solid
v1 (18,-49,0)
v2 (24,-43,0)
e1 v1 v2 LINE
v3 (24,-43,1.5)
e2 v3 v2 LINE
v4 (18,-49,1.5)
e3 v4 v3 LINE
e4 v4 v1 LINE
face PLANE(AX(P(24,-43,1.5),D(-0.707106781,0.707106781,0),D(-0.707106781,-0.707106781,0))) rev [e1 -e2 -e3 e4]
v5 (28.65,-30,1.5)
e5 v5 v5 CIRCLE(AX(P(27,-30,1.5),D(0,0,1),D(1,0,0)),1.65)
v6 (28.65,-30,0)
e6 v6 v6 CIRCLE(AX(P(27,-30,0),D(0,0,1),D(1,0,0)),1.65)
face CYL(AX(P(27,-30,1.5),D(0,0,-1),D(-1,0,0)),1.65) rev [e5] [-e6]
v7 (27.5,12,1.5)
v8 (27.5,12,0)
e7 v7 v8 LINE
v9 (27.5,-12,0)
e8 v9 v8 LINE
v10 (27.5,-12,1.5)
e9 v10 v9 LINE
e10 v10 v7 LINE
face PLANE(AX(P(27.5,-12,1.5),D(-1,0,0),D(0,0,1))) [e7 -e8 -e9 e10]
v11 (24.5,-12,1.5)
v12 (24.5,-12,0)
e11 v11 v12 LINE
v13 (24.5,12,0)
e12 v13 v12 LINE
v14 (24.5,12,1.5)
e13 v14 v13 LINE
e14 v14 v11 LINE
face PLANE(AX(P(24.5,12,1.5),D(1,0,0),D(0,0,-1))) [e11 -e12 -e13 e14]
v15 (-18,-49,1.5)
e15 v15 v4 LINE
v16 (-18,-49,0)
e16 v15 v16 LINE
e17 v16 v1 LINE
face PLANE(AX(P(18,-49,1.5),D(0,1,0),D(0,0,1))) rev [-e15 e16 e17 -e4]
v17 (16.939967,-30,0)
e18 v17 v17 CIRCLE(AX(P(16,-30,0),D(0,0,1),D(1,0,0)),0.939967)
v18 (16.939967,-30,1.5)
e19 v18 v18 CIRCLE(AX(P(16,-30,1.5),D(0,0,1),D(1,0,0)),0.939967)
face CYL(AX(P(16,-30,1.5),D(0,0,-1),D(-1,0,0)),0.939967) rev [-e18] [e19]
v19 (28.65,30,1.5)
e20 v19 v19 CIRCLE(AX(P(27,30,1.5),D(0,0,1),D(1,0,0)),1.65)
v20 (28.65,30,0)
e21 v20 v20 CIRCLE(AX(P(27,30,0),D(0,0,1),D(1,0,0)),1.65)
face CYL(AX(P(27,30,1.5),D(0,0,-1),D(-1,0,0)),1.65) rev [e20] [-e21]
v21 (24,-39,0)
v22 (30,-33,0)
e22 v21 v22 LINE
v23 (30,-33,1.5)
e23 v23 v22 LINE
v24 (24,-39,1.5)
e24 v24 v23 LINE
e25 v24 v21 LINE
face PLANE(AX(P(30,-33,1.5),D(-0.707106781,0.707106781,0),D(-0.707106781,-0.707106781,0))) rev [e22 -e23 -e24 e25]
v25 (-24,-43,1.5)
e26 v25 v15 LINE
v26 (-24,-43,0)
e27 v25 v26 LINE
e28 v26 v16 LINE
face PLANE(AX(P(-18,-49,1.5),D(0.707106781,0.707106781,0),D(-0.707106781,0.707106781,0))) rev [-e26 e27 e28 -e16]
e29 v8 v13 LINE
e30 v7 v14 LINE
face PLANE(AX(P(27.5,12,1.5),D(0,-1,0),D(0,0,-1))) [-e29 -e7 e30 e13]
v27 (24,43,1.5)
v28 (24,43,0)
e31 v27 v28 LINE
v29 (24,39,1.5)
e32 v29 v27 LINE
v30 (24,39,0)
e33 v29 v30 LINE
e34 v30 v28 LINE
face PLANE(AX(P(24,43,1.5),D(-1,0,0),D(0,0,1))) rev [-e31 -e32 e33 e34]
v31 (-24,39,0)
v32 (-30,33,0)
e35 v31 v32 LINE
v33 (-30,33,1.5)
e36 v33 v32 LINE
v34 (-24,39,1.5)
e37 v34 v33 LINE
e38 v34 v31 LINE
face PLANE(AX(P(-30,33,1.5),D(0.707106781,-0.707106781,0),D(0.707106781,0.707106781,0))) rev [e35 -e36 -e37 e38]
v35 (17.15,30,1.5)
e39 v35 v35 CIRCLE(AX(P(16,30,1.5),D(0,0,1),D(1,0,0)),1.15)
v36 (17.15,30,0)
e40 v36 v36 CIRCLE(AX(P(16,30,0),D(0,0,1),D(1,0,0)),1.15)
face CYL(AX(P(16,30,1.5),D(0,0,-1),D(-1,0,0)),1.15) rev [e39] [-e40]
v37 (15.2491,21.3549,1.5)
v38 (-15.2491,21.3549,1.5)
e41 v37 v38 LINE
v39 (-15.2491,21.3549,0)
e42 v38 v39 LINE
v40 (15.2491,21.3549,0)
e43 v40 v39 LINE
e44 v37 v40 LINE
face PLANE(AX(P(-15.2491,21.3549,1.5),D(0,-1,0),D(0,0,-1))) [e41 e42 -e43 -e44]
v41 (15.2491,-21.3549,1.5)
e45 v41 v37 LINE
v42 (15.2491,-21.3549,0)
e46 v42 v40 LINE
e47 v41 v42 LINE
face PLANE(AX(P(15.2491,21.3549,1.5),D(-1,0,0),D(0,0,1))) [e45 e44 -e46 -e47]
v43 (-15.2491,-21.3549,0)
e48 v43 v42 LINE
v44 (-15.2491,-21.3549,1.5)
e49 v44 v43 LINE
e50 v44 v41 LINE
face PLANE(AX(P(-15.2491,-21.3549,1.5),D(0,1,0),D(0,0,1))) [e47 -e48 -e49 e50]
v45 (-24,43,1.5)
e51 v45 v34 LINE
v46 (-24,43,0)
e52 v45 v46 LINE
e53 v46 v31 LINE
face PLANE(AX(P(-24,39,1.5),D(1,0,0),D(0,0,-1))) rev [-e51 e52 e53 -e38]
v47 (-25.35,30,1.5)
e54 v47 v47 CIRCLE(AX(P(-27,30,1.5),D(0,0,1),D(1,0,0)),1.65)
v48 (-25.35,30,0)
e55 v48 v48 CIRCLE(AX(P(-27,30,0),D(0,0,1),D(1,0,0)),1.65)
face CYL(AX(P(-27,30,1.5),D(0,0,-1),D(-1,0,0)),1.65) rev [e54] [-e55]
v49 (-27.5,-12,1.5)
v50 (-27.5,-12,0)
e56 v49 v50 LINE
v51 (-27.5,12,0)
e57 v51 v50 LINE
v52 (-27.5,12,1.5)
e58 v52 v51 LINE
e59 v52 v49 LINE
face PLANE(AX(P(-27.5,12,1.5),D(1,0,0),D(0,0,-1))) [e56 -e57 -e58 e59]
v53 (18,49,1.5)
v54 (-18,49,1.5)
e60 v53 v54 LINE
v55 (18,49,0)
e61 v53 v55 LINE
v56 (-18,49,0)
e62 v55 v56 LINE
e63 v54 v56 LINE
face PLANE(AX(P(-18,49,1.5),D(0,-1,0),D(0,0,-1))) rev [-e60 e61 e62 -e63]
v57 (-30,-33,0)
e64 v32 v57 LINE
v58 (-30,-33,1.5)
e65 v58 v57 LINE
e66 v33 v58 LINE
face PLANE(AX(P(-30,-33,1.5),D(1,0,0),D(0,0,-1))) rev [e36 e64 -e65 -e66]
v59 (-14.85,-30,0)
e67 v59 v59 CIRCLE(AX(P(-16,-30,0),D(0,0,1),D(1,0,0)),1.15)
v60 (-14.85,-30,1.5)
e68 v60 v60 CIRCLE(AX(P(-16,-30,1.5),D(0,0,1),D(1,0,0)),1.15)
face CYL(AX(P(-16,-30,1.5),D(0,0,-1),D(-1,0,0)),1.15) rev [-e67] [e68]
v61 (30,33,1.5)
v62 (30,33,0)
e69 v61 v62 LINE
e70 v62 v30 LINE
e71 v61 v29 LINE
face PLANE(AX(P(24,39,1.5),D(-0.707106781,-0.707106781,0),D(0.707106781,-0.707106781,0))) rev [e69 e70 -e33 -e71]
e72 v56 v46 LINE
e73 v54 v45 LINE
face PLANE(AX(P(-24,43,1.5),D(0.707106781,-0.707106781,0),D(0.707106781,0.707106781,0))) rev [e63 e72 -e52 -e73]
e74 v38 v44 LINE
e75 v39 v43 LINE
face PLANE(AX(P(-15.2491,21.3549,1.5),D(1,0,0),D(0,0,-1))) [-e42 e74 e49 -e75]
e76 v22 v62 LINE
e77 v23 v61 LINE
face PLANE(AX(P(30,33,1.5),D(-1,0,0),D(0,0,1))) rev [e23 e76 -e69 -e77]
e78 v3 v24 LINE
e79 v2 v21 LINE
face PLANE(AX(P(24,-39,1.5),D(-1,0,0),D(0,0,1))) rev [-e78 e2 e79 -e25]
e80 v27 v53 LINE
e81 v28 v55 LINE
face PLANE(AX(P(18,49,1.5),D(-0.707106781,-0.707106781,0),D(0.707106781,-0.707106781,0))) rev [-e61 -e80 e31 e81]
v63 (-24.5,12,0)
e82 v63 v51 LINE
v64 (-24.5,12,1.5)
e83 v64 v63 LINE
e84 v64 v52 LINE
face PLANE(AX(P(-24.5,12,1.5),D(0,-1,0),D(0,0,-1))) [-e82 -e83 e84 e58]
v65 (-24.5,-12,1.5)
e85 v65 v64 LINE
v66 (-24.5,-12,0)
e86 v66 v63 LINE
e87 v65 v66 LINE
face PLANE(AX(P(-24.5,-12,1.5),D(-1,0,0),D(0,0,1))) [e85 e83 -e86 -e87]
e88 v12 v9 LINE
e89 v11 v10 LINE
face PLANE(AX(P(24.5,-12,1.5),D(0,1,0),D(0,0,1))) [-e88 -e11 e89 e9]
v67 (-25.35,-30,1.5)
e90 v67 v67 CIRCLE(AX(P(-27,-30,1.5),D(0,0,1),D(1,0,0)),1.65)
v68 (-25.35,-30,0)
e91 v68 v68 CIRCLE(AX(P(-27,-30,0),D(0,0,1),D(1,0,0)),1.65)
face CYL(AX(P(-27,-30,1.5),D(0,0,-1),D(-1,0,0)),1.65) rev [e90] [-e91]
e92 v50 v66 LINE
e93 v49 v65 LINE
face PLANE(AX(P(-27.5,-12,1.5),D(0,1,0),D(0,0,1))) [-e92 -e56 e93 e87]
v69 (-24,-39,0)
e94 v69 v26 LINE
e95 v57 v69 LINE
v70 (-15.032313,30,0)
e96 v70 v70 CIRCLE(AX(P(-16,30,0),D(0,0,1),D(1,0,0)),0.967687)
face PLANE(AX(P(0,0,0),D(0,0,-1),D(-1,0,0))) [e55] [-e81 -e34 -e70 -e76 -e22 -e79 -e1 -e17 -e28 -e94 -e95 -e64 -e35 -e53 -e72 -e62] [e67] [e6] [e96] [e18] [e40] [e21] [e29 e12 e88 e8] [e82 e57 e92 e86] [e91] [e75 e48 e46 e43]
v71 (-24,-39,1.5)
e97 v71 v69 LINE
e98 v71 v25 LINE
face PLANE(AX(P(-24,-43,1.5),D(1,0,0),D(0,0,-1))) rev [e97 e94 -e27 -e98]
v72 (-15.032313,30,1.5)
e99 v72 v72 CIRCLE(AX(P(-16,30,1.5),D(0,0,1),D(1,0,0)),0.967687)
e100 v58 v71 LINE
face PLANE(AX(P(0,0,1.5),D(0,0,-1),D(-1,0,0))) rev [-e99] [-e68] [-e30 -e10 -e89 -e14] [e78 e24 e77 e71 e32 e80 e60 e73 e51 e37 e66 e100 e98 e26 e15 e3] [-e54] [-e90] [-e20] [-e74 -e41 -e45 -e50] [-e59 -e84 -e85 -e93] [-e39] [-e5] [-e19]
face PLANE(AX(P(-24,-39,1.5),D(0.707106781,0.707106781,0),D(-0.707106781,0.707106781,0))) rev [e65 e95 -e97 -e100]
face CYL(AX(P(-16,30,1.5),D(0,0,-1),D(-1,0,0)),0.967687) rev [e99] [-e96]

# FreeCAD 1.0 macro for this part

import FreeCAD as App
import Part
import Sketcher
from FreeCAD import Vector
Q = App.Units.Quantity

doc = App.newDocument("Part")
body = doc.addObject("PartDesign::Body", "Body")

# Sketch on XY plane
sketch1 = body.newObject("Sketcher::SketchObject", "Sketch")
sketch1.AttachmentSupport = (doc.getObject("XY_Plane"), [""])
sketch1.MapMode = "FlatFace"
sketch1.addGeometry(Part.LineSegment(Vector(24, -43, 0), Vector(24, -39, 0)), False)
sketch1.addGeometry(Part.LineSegment(Vector(24, -39, 0), Vector(30, -33, 0)), False)
sketch1.addGeometry(Part.LineSegment(Vector(30, -33, 0), Vector(30, 33, 0)), False)
sketch1.addGeometry(Part.LineSegment(Vector(30, 33, 0), Vector(24, 39, 0)), False)
sketch1.addGeometry(Part.LineSegment(Vector(24, 39, 0), Vector(24, 43, 0)), False)
sketch1.addGeometry(Part.LineSegment(Vector(24, 43, 0), Vector(18, 49, 0)), False)
sketch1.addGeometry(Part.LineSegment(Vector(18, 49, 0), Vector(-18, 49, 0)), False)
sketch1.addGeometry(Part.LineSegment(Vector(-18, 49, 0), Vector(-24, 43, 0)), False)
sketch1.addGeometry(Part.LineSegment(Vector(-24, 43, 0), Vector(-24, 39, 0)), False)
sketch1.addGeometry(Part.LineSegment(Vector(-24, 39, 0), Vector(-30, 33, 0)), False)
sketch1.addGeometry(Part.LineSegment(Vector(-30, 33, 0), Vector(-30, -33, 0)), False)
sketch1.addGeometry(Part.LineSegment(Vector(-30, -33, 0), Vector(-24, -39, 0)), False)
sketch1.addGeometry(Part.LineSegment(Vector(-24, -39, 0), Vector(-24, -43, 0)), False)
sketch1.addGeometry(Part.LineSegment(Vector(-24, -43, 0), Vector(-18, -49, 0)), False)
sketch1.addGeometry(Part.LineSegment(Vector(-18, -49, 0), Vector(18, -49, 0)), False)
sketch1.addGeometry(Part.LineSegment(Vector(18, -49, 0), Vector(24, -43, 0)), False)
sketch1.addGeometry(Part.Circle(Vector(27, -30, 0), Vector(0, 0, 1), 1.6), False)
sketch1.addGeometry(Part.Circle(Vector(16, -30, 0), Vector(0, 0, 1), 0.9), False)
sketch1.addGeometry(Part.Circle(Vector(-16, -30, 0), Vector(0, 0, 1), 1.1), False)
sketch1.addGeometry(Part.Circle(Vector(-27, -30, 0), Vector(0, 0, 1), 1.6), False)
sketch1.addGeometry(Part.LineSegment(Vector(24.5, -12, 0), Vector(24.5, 12, 0)), False)
sketch1.addGeometry(Part.LineSegment(Vector(24.5, 12, 0), Vector(27.5, 12, 0)), False)
sketch1.addGeometry(Part.LineSegment(Vector(27.5, 12, 0), Vector(27.5, -12, 0)), False)
sketch1.addGeometry(Part.LineSegment(Vector(27.5, -12, 0), Vector(24.5, -12, 0)), False)
sketch1.addGeometry(Part.Circle(Vector(27, 30, 0), Vector(0, 0, 1), 1.6), False)
sketch1.addGeometry(Part.Circle(Vector(16, 30, 0), Vector(0, 0, 1), 1.1), False)
sketch1.addGeometry(Part.LineSegment(Vector(-15.2, -21.4, 0), Vector(-15.2, 21.4, 0)), False)
sketch1.addGeometry(Part.LineSegment(Vector(-15.2, 21.4, 0), Vector(15.2, 21.4, 0)), False)
sketch1.addGeometry(Part.LineSegment(Vector(15.2, 21.4, 0), Vector(15.2, -21.4, 0)), False)
sketch1.addGeometry(Part.LineSegment(Vector(15.2, -21.4, 0), Vector(-15.2, -21.4, 0)), False)
sketch1.addGeometry(Part.LineSegment(Vector(-27.5, -12, 0), Vector(-27.5, 12, 0)), False)
sketch1.addGeometry(Part.LineSegment(Vector(-27.5, 12, 0), Vector(-24.5, 12, 0)), False)
sketch1.addGeometry(Part.LineSegment(Vector(-24.5, 12, 0), Vector(-24.5, -12, 0)), False)
sketch1.addGeometry(Part.LineSegment(Vector(-24.5, -12, 0), Vector(-27.5, -12, 0)), False)
sketch1.addGeometry(Part.Circle(Vector(-16, 30, 0), Vector(0, 0, 1), 1), False)
sketch1.addGeometry(Part.Circle(Vector(-27, 30, 0), Vector(0, 0, 1), 1.6), False)
sketch1.addConstraint(Sketcher.Constraint("Coincident", 0, 2, 1, 1))
sketch1.addConstraint(Sketcher.Constraint("Coincident", 1, 2, 2, 1))
sketch1.addConstraint(Sketcher.Constraint("Coincident", 2, 2, 3, 1))
sketch1.addConstraint(Sketcher.Constraint("Coincident", 3, 2, 4, 1))
sketch1.addConstraint(Sketcher.Constraint("Coincident", 4, 2, 5, 1))
sketch1.addConstraint(Sketcher.Constraint("Coincident", 5, 2, 6, 1))
sketch1.addConstraint(Sketcher.Constraint("Coincident", 6, 2, 7, 1))
sketch1.addConstraint(Sketcher.Constraint("Coincident", 7, 2, 8, 1))
sketch1.addConstraint(Sketcher.Constraint("Coincident", 8, 2, 9, 1))
sketch1.addConstraint(Sketcher.Constraint("Coincident", 9, 2, 10, 1))
sketch1.addConstraint(Sketcher.Constraint("Coincident", 10, 2, 11, 1))
sketch1.addConstraint(Sketcher.Constraint("Coincident", 11, 2, 12, 1))
sketch1.addConstraint(Sketcher.Constraint("Coincident", 12, 2, 13, 1))
sketch1.addConstraint(Sketcher.Constraint("Coincident", 13, 2, 14, 1))
sketch1.addConstraint(Sketcher.Constraint("Coincident", 14, 2, 15, 1))
sketch1.addConstraint(Sketcher.Constraint("Coincident", 15, 2, 0, 1))
sketch1.addConstraint(Sketcher.Constraint("Coincident", 20, 2, 21, 1))
sketch1.addConstraint(Sketcher.Constraint("Coincident", 21, 2, 22, 1))
sketch1.addConstraint(Sketcher.Constraint("Coincident", 22, 2, 23, 1))
sketch1.addConstraint(Sketcher.Constraint("Coincident", 23, 2, 20, 1))
sketch1.addConstraint(Sketcher.Constraint("Coincident", 26, 2, 27, 1))
sketch1.addConstraint(Sketcher.Constraint("Coincident", 27, 2, 28, 1))
sketch1.addConstraint(Sketcher.Constraint("Coincident", 28, 2, 29, 1))
sketch1.addConstraint(Sketcher.Constraint("Coincident", 29, 2, 26, 1))
sketch1.addConstraint(Sketcher.Constraint("Coincident", 30, 2, 31, 1))
sketch1.addConstraint(Sketcher.Constraint("Coincident", 31, 2, 32, 1))
sketch1.addConstraint(Sketcher.Constraint("Coincident", 32, 2, 33, 1))
sketch1.addConstraint(Sketcher.Constraint("Coincident", 33, 2, 30, 1))
sketch1.addConstraint(Sketcher.Constraint("Vertical", 0))
sketch1.addConstraint(Sketcher.Constraint("Vertical", 2))
sketch1.addConstraint(Sketcher.Constraint("Vertical", 4))
sketch1.addConstraint(Sketcher.Constraint("Horizontal", 6))
sketch1.addConstraint(Sketcher.Constraint("Vertical", 8))
sketch1.addConstraint(Sketcher.Constraint("Vertical", 10))
sketch1.addConstraint(Sketcher.Constraint("Vertical", 12))
sketch1.addConstraint(Sketcher.Constraint("Horizontal", 14))
sketch1.addConstraint(Sketcher.Constraint("Vertical", 20))
sketch1.addConstraint(Sketcher.Constraint("Horizontal", 21))
sketch1.addConstraint(Sketcher.Constraint("Vertical", 22))
sketch1.addConstraint(Sketcher.Constraint("Horizontal", 23))
sketch1.addConstraint(Sketcher.Constraint("Vertical", 26))
sketch1.addConstraint(Sketcher.Constraint("Horizontal", 27))
sketch1.addConstraint(Sketcher.Constraint("Vertical", 28))
sketch1.addConstraint(Sketcher.Constraint("Horizontal", 29))
sketch1.addConstraint(Sketcher.Constraint("Vertical", 30))
sketch1.addConstraint(Sketcher.Constraint("Horizontal", 31))
sketch1.addConstraint(Sketcher.Constraint("Vertical", 32))
sketch1.addConstraint(Sketcher.Constraint("Horizontal", 33))
sketch1.addConstraint(Sketcher.Constraint("Equal", 16, 19))
sketch1.addConstraint(Sketcher.Constraint("Equal", 19, 24))
sketch1.addConstraint(Sketcher.Constraint("Equal", 18, 25))
sketch1.addConstraint(Sketcher.Constraint("Equal", 24, 35))
sketch1.addConstraint(Sketcher.Constraint("Symmetric", 19, 3, 24, 3, -1, 1))
sketch1.addConstraint(Sketcher.Constraint("Symmetric", 18, 3, 25, 3, -1, 1))
sketch1.addConstraint(Sketcher.Constraint("Symmetric", 17, 3, 34, 3, -1, 1))
sketch1.addConstraint(Sketcher.Constraint("Symmetric", 16, 3, 35, 3, -1, 1))
sketch1.addConstraint(Sketcher.Constraint("Symmetric", 0, 2, 8, 2, -1, 1))
sketch1.addConstraint(Sketcher.Constraint("Symmetric", 1, 2, 9, 2, -1, 1))
sketch1.addConstraint(Sketcher.Constraint("Symmetric", 3, 2, 11, 2, -1, 1))
sketch1.addConstraint(Sketcher.Constraint("Symmetric", 5, 2, 13, 2, -1, 1))
sketch1.addConstraint(Sketcher.Constraint("Symmetric", 26, 2, 28, 2, -1, 1))
sketch1.addConstraint(Sketcher.Constraint("Symmetric", 22, 2, 30, 2, -1, 1))
sketch1.addConstraint(Sketcher.Constraint("Symmetric", 20, 2, 32, 2, -1, 1))
sketch1.addConstraint(Sketcher.Constraint("Symmetric", 17, 3, 18, 3, -2))
sketch1.addConstraint(Sketcher.Constraint("Symmetric", 16, 3, 19, 3, -2))
sketch1.addConstraint(Sketcher.Constraint("Symmetric", 4, 2, 7, 2, -2))
sketch1.addConstraint(Sketcher.Constraint("Perpendicular", 1, 3))
sketch1.addConstraint(Sketcher.Constraint("Parallel", 3, 5))
sketch1.addConstraint(Sketcher.Constraint("Perpendicular", 5, 7))
sketch1.addConstraint(Sketcher.Constraint("Perpendicular", 9, 11))
sketch1.addConstraint(Sketcher.Constraint("Parallel", 11, 13))
sketch1.addConstraint(Sketcher.Constraint("Perpendicular", 13, 15))
sketch1.addConstraint(Sketcher.Constraint("Horizontal", 16, 3, 17, 3))
sketch1.addConstraint(Sketcher.Constraint("Horizontal", 3, 2, 8, 2))
sketch1.addConstraint(Sketcher.Constraint("Horizontal", 2, 2, 9, 2))
sketch1.addConstraint(Sketcher.Constraint("Horizontal", 12, 2, 15, 2))
sketch1.addConstraint(Sketcher.Constraint("Horizontal", 21, 2, 30, 2))
sketch1.addConstraint(Sketcher.Constraint("Equal", 3, 5))
sketch1.addConstraint(Sketcher.Constraint("Diameter", 16, Q("3.3 mm")))
sketch1.addConstraint(Sketcher.Constraint("Diameter", 18, Q("2.3 mm")))
sketch1.addConstraint(Sketcher.Constraint("DistanceX", 6, 2, 6, 1, Q("36 mm")))
sketch1.addConstraint(Sketcher.Constraint("DistanceX", 21, 1, 21, 2, Q("3 mm")))
sketch1.addConstraint(Sketcher.Constraint("DistanceY", 0, 1, 0, 2, Q("4 mm")))
sketch1.addConstraint(Sketcher.Constraint("DistanceY", 2, 1, 2, 2, Q("66 mm")))
sketch1.addConstraint(Sketcher.Constraint("DistanceY", 20, 1, 20, 2, Q("24 mm")))
sketch1.addConstraint(Sketcher.Constraint("DistanceX", -1, 1, 16, 3, Q("27 mm")))
sketch1.addConstraint(Sketcher.Constraint("DistanceY", 16, 3, -1, 1, Q("30 mm")))
sketch1.addConstraint(Sketcher.Constraint("DistanceX", -1, 1, 17, 3, Q("16 mm")))
sketch1.addConstraint(Sketcher.Constraint("DistanceX", -1, 1, 0, 2, Q("24 mm")))
sketch1.addConstraint(Sketcher.Constraint("DistanceX", -1, 1, 20, 2, Q("24.5 mm")))
sketch1.addConstraint(Sketcher.Constraint("Diameter", 17, Q("1.879935 mm")))
sketch1.addConstraint(Sketcher.Constraint("Diameter", 34, Q("1.935373 mm")))
sketch1.addConstraint(Sketcher.Constraint("DistanceX", 27, 1, 27, 2, Q("30.4982 mm")))
sketch1.addConstraint(Sketcher.Constraint("DistanceY", 26, 1, 26, 2, Q("42.7098 mm")))
pad1 = body.newObject("PartDesign::Pad", "Pad")
pad1.Profile = sketch1
pad1.Length = 1.5

doc.recompute()
